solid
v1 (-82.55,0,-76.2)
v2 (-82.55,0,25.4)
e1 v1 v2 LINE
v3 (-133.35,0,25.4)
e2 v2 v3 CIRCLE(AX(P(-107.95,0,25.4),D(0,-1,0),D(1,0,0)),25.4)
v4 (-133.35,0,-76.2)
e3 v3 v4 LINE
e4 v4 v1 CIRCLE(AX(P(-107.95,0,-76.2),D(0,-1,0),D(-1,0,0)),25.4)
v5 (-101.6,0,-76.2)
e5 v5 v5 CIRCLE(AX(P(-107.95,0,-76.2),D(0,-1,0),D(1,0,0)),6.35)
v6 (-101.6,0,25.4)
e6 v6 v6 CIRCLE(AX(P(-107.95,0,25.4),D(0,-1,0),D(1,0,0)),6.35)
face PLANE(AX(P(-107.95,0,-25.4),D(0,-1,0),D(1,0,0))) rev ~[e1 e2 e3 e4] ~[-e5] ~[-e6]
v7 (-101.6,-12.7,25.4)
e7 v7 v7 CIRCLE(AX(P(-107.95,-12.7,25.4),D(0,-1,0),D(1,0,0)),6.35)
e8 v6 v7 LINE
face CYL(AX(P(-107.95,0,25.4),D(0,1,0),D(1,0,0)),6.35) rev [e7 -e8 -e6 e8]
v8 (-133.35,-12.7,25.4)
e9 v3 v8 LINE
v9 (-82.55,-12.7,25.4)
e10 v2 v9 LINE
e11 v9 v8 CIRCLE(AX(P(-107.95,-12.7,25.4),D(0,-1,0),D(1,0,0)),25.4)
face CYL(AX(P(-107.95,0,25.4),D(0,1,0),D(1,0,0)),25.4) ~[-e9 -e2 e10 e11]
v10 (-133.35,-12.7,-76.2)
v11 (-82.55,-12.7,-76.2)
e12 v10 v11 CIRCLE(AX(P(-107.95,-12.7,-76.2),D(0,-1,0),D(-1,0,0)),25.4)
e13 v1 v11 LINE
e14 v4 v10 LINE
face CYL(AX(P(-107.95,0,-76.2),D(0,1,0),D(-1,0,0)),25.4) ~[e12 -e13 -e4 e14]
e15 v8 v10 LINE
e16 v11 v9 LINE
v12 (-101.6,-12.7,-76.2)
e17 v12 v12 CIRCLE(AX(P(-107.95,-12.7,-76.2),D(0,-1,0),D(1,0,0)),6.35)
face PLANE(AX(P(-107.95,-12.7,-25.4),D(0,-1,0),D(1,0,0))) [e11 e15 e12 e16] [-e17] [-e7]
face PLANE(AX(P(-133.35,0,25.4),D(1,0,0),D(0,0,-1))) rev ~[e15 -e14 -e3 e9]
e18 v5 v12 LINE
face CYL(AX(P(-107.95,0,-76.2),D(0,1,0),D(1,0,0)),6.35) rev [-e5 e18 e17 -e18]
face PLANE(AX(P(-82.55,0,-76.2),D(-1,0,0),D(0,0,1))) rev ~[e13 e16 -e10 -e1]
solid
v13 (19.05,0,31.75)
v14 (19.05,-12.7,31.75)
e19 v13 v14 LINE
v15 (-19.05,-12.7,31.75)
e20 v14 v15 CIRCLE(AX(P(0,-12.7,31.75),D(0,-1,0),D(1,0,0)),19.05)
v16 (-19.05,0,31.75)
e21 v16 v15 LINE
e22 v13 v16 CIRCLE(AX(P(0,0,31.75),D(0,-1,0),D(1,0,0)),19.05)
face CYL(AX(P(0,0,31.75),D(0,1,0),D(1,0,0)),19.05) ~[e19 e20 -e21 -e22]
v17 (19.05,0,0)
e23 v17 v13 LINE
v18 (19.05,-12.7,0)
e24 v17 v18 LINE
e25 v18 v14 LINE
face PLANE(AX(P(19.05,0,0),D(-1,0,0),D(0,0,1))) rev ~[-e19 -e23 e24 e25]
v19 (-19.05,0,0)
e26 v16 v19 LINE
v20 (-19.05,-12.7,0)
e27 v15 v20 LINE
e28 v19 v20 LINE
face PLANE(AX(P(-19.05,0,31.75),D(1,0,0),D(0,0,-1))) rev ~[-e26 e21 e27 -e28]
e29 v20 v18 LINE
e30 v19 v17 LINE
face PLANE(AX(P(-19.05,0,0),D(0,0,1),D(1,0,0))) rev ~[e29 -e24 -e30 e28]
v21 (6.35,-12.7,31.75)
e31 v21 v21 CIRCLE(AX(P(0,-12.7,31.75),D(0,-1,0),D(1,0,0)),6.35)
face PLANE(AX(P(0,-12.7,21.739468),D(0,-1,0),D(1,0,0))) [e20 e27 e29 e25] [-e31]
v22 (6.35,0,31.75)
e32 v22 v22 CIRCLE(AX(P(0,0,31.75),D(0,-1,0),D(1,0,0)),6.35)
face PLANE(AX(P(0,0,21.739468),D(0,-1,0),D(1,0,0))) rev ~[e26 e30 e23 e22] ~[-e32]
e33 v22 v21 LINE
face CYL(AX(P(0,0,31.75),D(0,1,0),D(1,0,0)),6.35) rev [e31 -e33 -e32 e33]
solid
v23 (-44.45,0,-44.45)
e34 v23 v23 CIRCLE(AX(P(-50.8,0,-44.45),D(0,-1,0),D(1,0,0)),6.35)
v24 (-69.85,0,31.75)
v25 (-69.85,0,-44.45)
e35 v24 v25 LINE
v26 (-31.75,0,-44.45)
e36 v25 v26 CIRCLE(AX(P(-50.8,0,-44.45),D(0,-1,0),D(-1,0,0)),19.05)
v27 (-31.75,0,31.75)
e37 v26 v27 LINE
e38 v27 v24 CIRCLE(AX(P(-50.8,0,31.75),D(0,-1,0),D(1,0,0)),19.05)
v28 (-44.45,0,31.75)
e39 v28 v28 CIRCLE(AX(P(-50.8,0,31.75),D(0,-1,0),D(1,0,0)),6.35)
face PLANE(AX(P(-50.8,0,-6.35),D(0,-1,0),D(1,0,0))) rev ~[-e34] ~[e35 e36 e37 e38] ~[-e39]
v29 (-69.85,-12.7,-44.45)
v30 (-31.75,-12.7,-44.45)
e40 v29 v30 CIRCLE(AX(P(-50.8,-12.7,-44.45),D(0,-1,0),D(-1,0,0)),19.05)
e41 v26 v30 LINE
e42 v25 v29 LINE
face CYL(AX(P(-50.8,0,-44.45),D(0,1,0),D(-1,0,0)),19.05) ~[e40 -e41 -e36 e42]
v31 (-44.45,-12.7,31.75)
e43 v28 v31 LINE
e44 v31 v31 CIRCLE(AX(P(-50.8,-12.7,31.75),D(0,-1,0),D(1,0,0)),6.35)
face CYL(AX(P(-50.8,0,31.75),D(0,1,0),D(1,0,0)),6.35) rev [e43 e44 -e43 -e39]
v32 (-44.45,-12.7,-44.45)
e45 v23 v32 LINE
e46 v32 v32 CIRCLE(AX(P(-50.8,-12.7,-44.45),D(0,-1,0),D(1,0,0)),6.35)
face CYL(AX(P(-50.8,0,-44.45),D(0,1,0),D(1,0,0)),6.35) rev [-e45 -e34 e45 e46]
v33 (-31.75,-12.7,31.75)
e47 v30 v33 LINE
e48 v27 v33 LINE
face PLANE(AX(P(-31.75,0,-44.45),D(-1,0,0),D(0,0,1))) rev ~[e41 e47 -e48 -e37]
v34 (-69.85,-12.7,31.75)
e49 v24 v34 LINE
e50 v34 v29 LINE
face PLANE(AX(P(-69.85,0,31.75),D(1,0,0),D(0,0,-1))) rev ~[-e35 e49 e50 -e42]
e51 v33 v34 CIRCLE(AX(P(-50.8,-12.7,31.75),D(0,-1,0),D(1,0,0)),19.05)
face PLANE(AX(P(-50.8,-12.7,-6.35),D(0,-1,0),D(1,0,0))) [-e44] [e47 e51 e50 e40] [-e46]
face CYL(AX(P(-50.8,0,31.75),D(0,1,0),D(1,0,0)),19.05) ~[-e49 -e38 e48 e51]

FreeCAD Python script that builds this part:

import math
import FreeCAD as App
import Part
import Sketcher
Q = App.Units.Quantity

doc = App.newDocument("Part")
body = doc.addObject("PartDesign::Body", "Body")

# Sketch on XZ plane
sketch1 = body.newObject("Sketcher::SketchObject", "Sketch")
sketch1.AttachmentSupport = (doc.getObject("XZ_Plane"), [""])
sketch1.MapMode = "FlatFace"
sketch1.addGeometry(Part.LineSegment(App.Vector(19.05, 0, 0), App.Vector(19.05, 31.75, 0)), False)
sketch1.addGeometry(Part.ArcOfCircle(Part.Circle(App.Vector(0, 31.75, 0), App.Vector(0, 0, 1), 19.05), math.radians(0), math.radians(180)), False)
sketch1.addGeometry(Part.LineSegment(App.Vector(-19.05, 31.75, 0), App.Vector(-19.05, 0, 0)), False)
sketch1.addGeometry(Part.LineSegment(App.Vector(-19.05, 0, 0), App.Vector(19.05, 0, 0)), False)
sketch1.addGeometry(Part.Circle(App.Vector(0, 31.75, 0), App.Vector(0, 0, 1), 6.35), False)
sketch1.addConstraint(Sketcher.Constraint("Tangent", 0, 2, 1, 1))
sketch1.addConstraint(Sketcher.Constraint("Tangent", 1, 2, 2, 1))
sketch1.addConstraint(Sketcher.Constraint("Coincident", 2, 2, 3, 1))
sketch1.addConstraint(Sketcher.Constraint("Coincident", 3, 2, 0, 1))
sketch1.addConstraint(Sketcher.Constraint("Vertical", 0))
sketch1.addConstraint(Sketcher.Constraint("Vertical", 2))
sketch1.addConstraint(Sketcher.Constraint("Horizontal", 3))
sketch1.addConstraint(Sketcher.Constraint("Coincident", 4, 3, 1, 3))
sketch1.addConstraint(Sketcher.Constraint("Symmetric", 2, 2, 3, 2, -1, 1))
sketch1.addConstraint(Sketcher.Constraint("Diameter", 4, Q("0.5 in")))
sketch1.addConstraint(Sketcher.Constraint("Radius", 1, Q("0.75 in")))
sketch1.addConstraint(Sketcher.Constraint("DistanceY", 0, 1, 0, 2, Q("1.25 in")))
pad1 = body.newObject("PartDesign::Pad", "Pad")
pad1.Profile = sketch1
pad1.Length = Q("0.5 in")
body2 = doc.addObject("PartDesign::Body", "Body001")

# Sketch on XZ plane
sketch2 = body2.newObject("Sketcher::SketchObject", "Sketch001")
sketch2.AttachmentSupport = (doc.getObject("XZ_Plane001"), [""])
sketch2.MapMode = "FlatFace"
sketch2.addGeometry(Part.LineSegment(App.Vector(-31.75, -44.45, 0), App.Vector(-31.75, 31.75, 0)), False)
sketch2.addGeometry(Part.ArcOfCircle(Part.Circle(App.Vector(-50.8, 31.75, 0), App.Vector(0, 0, 1), 19.05), math.radians(0), math.radians(180)), False)
sketch2.addGeometry(Part.LineSegment(App.Vector(-69.85, 31.75, 0), App.Vector(-69.85, -44.45, 0)), False)
sketch2.addGeometry(Part.ArcOfCircle(Part.Circle(App.Vector(-50.8, -44.45, 0), App.Vector(0, 0, 1), 19.05), math.radians(180), math.radians(360)), False)
sketch2.addGeometry(Part.Circle(App.Vector(-50.8, -44.45, 0), App.Vector(0, 0, 1), 6.35), False)
sketch2.addGeometry(Part.Circle(App.Vector(-50.8, 31.75, 0), App.Vector(0, 0, 1), 6.35), False)
sketch2.addConstraint(Sketcher.Constraint("Tangent", 0, 2, 1, 1))
sketch2.addConstraint(Sketcher.Constraint("Tangent", 1, 2, 2, 1))
sketch2.addConstraint(Sketcher.Constraint("Tangent", 2, 2, 3, 1))
sketch2.addConstraint(Sketcher.Constraint("Tangent", 3, 2, 0, 1))
sketch2.addConstraint(Sketcher.Constraint("Vertical", 0))
sketch2.addConstraint(Sketcher.Constraint("Vertical", 2))
sketch2.addConstraint(Sketcher.Constraint("Coincident", 4, 3, 3, 3))
sketch2.addConstraint(Sketcher.Constraint("Coincident", 5, 3, 1, 3))
sketch2.addConstraint(Sketcher.Constraint("Equal", 4, 5))
sketch2.addConstraint(Sketcher.Constraint("Diameter", 4, Q("0.5 in")))
sketch2.addConstraint(Sketcher.Constraint("DistanceY", 0, 1, 0, 2, Q("3 in")))
sketch2.addConstraint(Sketcher.Constraint("Radius", 1, Q("0.75 in")))
sketch2.addConstraint(Sketcher.Constraint("DistanceX", 1, 3, -1, 1, Q("2 in")))
sketch2.addConstraint(Sketcher.Constraint("DistanceY", -1, 1, 1, 3, Q("1.25 in")))
pad2 = body2.newObject("PartDesign::Pad", "Pad001")
pad2.Profile = sketch2
pad2.Length = Q("0.5 in")
body3 = doc.addObject("PartDesign::Body", "Body002")

# Sketch on XZ plane
sketch3 = body3.newObject("Sketcher::SketchObject", "Sketch002")
sketch3.AttachmentSupport = (doc.getObject("XZ_Plane002"), [""])
sketch3.MapMode = "FlatFace"
sketch3.addGeometry(Part.LineSegment(App.Vector(-82.55, -76.2, 0), App.Vector(-82.55, 25.4, 0)), False)
sketch3.addGeometry(Part.ArcOfCircle(Part.Circle(App.Vector(-107.95, 25.4, 0), App.Vector(0, 0, 1), 25.4), math.radians(0), math.radians(180)), False)
sketch3.addGeometry(Part.LineSegment(App.Vector(-133.35, 25.4, 0), App.Vector(-133.35, -76.2, 0)), False)
sketch3.addGeometry(Part.ArcOfCircle(Part.Circle(App.Vector(-107.95, -76.2, 0), App.Vector(0, 0, 1), 25.4), math.radians(180), math.radians(360)), False)
sketch3.addGeometry(Part.Circle(App.Vector(-107.95, -76.2, 0), App.Vector(0, 0, 1), 6.35), False)
sketch3.addGeometry(Part.Circle(App.Vector(-107.95, 25.4, 0), App.Vector(0, 0, 1), 6.35), False)
sketch3.addConstraint(Sketcher.Constraint("Tangent", 0, 2, 1, 1))
sketch3.addConstraint(Sketcher.Constraint("Tangent", 1, 2, 2, 1))
sketch3.addConstraint(Sketcher.Constraint("Tangent", 2, 2, 3, 1))
sketch3.addConstraint(Sketcher.Constraint("Tangent", 3, 2, 0, 1))
sketch3.addConstraint(Sketcher.Constraint("Vertical", 0))
sketch3.addConstraint(Sketcher.Constraint("Vertical", 2))
sketch3.addConstraint(Sketcher.Constraint("Coincident", 4, 3, 3, 3))
sketch3.addConstraint(Sketcher.Constraint("Coincident", 5, 3, 1, 3))
sketch3.addConstraint(Sketcher.Constraint("Equal", 4, 5))
sketch3.addConstraint(Sketcher.Constraint("Radius", 1, Q("1 in")))
sketch3.addConstraint(Sketcher.Constraint("Diameter", 4, Q("0.5 in")))
sketch3.addConstraint(Sketcher.Constraint("DistanceY", 0, 1, 0, 2, Q("4 in")))
sketch3.addConstraint(Sketcher.Constraint("DistanceY", -1, 1, 1, 3, Q("1 in")))
sketch3.addConstraint(Sketcher.Constraint("DistanceX", 1, 3, -1, 1, Q("4.25 in")))
pad3 = body3.newObject("PartDesign::Pad", "Pad002")
pad3.Profile = sketch3
pad3.Length = Q("0.5 in")

doc.recompute()
